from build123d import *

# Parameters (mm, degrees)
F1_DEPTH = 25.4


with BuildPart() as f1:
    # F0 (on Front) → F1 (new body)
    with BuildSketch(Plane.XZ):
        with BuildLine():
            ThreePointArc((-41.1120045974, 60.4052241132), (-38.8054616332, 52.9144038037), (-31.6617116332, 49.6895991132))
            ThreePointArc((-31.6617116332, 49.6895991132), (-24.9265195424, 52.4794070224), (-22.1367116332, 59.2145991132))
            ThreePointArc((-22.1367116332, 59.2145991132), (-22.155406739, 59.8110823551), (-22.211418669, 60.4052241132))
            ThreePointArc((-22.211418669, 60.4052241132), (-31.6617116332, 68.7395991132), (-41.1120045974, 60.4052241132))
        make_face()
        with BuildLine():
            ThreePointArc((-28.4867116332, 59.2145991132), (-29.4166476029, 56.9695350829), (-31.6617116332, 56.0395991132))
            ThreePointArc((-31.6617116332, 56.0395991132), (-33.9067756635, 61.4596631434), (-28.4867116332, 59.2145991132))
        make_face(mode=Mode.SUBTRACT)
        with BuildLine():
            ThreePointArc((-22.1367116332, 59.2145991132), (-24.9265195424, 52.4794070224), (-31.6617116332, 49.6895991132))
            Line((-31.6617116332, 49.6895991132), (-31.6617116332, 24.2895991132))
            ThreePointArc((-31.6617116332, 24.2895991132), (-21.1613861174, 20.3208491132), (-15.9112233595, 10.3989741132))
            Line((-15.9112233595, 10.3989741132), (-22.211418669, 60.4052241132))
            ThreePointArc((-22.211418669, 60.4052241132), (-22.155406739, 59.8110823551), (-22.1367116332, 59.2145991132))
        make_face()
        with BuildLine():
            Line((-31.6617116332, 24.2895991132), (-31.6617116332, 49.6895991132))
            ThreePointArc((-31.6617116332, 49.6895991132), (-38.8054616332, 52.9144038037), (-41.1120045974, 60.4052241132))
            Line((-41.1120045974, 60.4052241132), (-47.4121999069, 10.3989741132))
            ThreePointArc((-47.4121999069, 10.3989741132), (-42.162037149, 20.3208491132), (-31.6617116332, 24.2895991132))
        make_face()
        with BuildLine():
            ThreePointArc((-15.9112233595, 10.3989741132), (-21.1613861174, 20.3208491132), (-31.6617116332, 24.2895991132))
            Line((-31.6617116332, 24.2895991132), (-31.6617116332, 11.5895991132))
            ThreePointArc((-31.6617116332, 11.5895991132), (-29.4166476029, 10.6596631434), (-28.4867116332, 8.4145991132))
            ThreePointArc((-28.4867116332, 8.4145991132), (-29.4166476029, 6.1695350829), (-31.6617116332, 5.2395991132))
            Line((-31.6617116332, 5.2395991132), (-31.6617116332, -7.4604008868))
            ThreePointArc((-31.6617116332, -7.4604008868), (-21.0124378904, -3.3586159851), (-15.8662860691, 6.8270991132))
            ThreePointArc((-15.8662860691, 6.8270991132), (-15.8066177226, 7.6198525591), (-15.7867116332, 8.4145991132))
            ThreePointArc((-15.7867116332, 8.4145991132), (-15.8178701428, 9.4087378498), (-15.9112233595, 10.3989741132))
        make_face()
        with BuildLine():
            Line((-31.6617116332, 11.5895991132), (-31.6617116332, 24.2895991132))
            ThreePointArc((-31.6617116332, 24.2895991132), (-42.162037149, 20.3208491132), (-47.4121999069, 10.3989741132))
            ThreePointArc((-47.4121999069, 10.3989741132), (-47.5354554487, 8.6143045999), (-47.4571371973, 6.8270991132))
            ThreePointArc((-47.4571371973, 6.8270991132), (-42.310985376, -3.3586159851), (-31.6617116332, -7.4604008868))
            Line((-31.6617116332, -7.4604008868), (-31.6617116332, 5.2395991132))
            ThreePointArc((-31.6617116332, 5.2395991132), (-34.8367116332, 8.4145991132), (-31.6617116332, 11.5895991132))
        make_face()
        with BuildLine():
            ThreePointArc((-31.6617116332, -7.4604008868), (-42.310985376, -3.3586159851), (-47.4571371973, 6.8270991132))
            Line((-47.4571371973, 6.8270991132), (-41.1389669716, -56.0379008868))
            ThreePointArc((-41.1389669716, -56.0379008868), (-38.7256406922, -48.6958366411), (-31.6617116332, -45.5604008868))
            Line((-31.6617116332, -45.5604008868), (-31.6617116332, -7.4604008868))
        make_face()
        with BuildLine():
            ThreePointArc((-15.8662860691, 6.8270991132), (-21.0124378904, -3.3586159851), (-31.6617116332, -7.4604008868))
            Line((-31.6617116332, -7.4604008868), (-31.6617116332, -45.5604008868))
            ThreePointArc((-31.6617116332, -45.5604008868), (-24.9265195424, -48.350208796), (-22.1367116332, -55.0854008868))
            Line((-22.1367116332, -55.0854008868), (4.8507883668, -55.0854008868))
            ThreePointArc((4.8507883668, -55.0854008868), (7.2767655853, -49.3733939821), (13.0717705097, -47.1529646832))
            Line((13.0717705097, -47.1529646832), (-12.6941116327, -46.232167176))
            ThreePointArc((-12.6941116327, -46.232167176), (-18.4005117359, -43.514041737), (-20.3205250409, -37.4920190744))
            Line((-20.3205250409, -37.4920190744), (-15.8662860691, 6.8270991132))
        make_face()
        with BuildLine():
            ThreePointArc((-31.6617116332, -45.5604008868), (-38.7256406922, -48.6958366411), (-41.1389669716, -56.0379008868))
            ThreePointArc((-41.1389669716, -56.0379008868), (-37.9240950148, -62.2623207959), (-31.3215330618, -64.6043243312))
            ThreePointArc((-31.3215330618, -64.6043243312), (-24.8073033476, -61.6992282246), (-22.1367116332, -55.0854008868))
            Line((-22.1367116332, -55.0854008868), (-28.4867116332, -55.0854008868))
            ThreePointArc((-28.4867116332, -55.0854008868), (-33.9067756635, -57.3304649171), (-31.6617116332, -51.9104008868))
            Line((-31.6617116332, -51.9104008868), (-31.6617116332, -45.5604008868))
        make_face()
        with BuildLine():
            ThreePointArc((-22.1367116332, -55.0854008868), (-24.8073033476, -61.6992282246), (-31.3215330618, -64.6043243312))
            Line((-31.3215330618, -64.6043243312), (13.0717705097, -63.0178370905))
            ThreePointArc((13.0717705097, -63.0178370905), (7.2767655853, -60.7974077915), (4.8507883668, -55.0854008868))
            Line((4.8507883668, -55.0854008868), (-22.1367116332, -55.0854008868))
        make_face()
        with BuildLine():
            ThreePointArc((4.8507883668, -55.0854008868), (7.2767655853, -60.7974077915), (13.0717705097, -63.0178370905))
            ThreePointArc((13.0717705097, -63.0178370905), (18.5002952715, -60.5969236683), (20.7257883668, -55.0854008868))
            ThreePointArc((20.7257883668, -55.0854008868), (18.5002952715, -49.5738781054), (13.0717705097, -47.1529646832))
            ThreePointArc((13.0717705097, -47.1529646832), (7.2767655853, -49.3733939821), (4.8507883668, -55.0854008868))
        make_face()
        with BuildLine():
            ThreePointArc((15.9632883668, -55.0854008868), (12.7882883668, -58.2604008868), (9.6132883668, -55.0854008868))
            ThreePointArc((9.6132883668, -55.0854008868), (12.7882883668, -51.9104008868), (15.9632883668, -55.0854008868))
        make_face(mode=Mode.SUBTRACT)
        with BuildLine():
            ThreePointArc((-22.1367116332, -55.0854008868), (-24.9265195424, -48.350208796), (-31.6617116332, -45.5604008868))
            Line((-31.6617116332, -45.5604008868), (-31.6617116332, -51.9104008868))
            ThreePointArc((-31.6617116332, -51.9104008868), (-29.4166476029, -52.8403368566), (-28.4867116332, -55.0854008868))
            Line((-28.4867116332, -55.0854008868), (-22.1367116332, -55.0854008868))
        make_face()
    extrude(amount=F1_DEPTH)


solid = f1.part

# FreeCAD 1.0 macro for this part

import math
import FreeCAD as App
import Part
import Sketcher

V = App.Vector
Q = App.Units.Quantity

doc = App.newDocument("Part")
body = doc.addObject("PartDesign::Body", "Body")

sketch1 = body.newObject("Sketcher::SketchObject", "Sketch")
sketch1.AttachmentSupport = (doc.getObject("XZ_Plane"), [""])
sketch1.MapMode = "FlatFace"
sketch1.addGeometry([
    Part.ArcOfCircle(Part.Circle(V(-31.7, -55.1, 0), V(0, 0, 1), 9.5), math.radians(-174), math.radians(-88)),
    Part.LineSegment(V(-31.3, -64.6, 0), V(13.1, -63, 0)),
    Part.ArcOfCircle(Part.Circle(V(12.8, -55.1, 0), V(0, 0, 1), 7.9), math.radians(-88), math.radians(0)),
    Part.ArcOfCircle(Part.Circle(V(12.8, -55.1, 0), V(0, 0, 1), 7.9), math.radians(0), math.radians(88)),
    Part.LineSegment(V(13.1, -47.2, 0), V(-12.7, -46.2, 0)),
    Part.ArcOfCircle(Part.Circle(V(-12.4, -38.3, 0), V(0, 0, 1), 8), math.radians(174), math.radians(268)),
    Part.LineSegment(V(-20.3, -37.5, 0), V(-15.9, 6.8, 0)),
    Part.ArcOfCircle(Part.Circle(V(-31.7, 8.4, 0), V(0, 0, 1), 15.9), math.radians(-5.74), math.radians(0)),
    Part.ArcOfCircle(Part.Circle(V(-31.7, 8.4, 0), V(0, 0, 1), 15.9), math.radians(0), math.radians(7.18)),
    Part.LineSegment(V(-15.9, 10.4, 0), V(-22.2, 60.4, 0)),
    Part.ArcOfCircle(Part.Circle(V(-31.7, 59.2, 0), V(0, 0, 1), 9.5), math.radians(7), math.radians(173)),
    Part.LineSegment(V(-41.1, 60.4, 0), V(-47.4, 10.4, 0)),
    Part.ArcOfCircle(Part.Circle(V(-31.7, 8.4, 0), V(0, 0, 1), 15.9), math.radians(172.82), math.radians(185.74)),
    Part.LineSegment(V(-47.5, 6.8, 0), V(-41.1, -56, 0)),
    Part.ArcOfCircle(Part.Circle(V(-31.7, -55.1, 0), V(0, 0, 1), 3.2), math.radians(90), math.radians(360)),
    Part.ArcOfCircle(Part.Circle(V(-31.7, -55.1, 0), V(0, 0, 1), 3.2), math.radians(0), math.radians(90)),
    Part.Circle(V(12.8, -55.1, 0), V(0, 0, 1), 3.2),
    Part.ArcOfCircle(Part.Circle(V(-31.7, 8.4, 0), V(0, 0, 1), 3.2), math.radians(0), math.radians(90)),
    Part.ArcOfCircle(Part.Circle(V(-31.7, 8.4, 0), V(0, 0, 1), 3.2), math.radians(-90), math.radians(0)),
    Part.ArcOfCircle(Part.Circle(V(-31.7, 8.4, 0), V(0, 0, 1), 3.2), math.radians(90), math.radians(270)),
    Part.ArcOfCircle(Part.Circle(V(-31.7, 59.2, 0), V(0, 0, 1), 3.2), math.radians(0), math.radians(270)),
    Part.ArcOfCircle(Part.Circle(V(-31.7, 59.2, 0), V(0, 0, 1), 3.2), math.radians(-90), math.radians(0)),
], False)
sketch1.addConstraint([
    Sketcher.Constraint("Tangent", 0, 2, 1, 1),
    Sketcher.Constraint("Tangent", 1, 2, 2, 1),
    Sketcher.Constraint("Tangent", 2, 2, 3, 1),
    Sketcher.Constraint("Tangent", 3, 2, 4, 1),
    Sketcher.Constraint("Tangent", 4, 2, 5, 2),
    Sketcher.Constraint("Tangent", 5, 1, 6, 1),
    Sketcher.Constraint("Tangent", 6, 2, 7, 1),
    Sketcher.Constraint("Tangent", 7, 2, 8, 1),
    Sketcher.Constraint("Tangent", 8, 2, 9, 1),
    Sketcher.Constraint("Tangent", 9, 2, 10, 1),
    Sketcher.Constraint("Tangent", 10, 2, 11, 1),
    Sketcher.Constraint("Tangent", 11, 2, 12, 1),
    Sketcher.Constraint("Tangent", 12, 2, 13, 1),
    Sketcher.Constraint("Tangent", 13, 2, 0, 1),
    Sketcher.Constraint("Tangent", 14, 1, 15, 2),
    Sketcher.Constraint("Coincident", 15, 1, 14, 2),
    Sketcher.Constraint("Tangent", 17, 1, 18, 2),
    Sketcher.Constraint("Tangent", 18, 1, 19, 2),
    Sketcher.Constraint("Tangent", 19, 1, 17, 2),
    Sketcher.Constraint("Tangent", 20, 1, 21, 2),
    Sketcher.Constraint("Coincident", 21, 1, 20, 2),
    Sketcher.Constraint("Coincident", 12, 3, 7, 3),
    Sketcher.Constraint("Coincident", 14, 3, 0, 3),
    Sketcher.Constraint("Coincident", 16, 3, 2, 3),
    Sketcher.Constraint("Coincident", 17, 3, 7, 3),
    Sketcher.Constraint("Coincident", 20, 3, 10, 3),
    Sketcher.Constraint("Equal", 2, 3),
    Sketcher.Constraint("Equal", 7, 8),
    Sketcher.Constraint("Equal", 0, 10),
    Sketcher.Constraint("Equal", 8, 12),
    Sketcher.Constraint("Equal", 15, 16),
    Sketcher.Constraint("Equal", 16, 17),
    Sketcher.Constraint("Equal", 19, 20),
    Sketcher.Constraint("Horizontal", 0, 3, 2, 3),
    Sketcher.Constraint("Horizontal", 16, 3, 2, 2),
    Sketcher.Constraint("Horizontal", 19, 3, 7, 2),
    Sketcher.Constraint("Horizontal", 9, 2, 10, 2),
    Sketcher.Constraint("Horizontal", 6, 2, 12, 2),
    Sketcher.Constraint("Horizontal", 2, 2, 15, 1),
    Sketcher.Constraint("Horizontal", 7, 2, 17, 1),
    Sketcher.Constraint("Horizontal", 21, 3, 20, 1),
    Sketcher.Constraint("Vertical", 0, 3, 7, 3),
    Sketcher.Constraint("Vertical", 1, 2, 3, 2),
    Sketcher.Constraint("Vertical", 21, 3, 14, 1),
    Sketcher.Constraint("Vertical", 14, 1, 18, 1),
    Sketcher.Constraint("Vertical", 18, 1, 19, 1),
    Sketcher.Constraint("Vertical", 19, 1, 21, 1),
    Sketcher.Constraint("Diameter", 16, Q("0.25 in")),
    Sketcher.Constraint("Radius", 0, Q("0.375 in")),
    Sketcher.Constraint("Radius", 2, Q("0.3125 in")),
    Sketcher.Constraint("Radius", 5, Q("0.313 in")),
    Sketcher.Constraint("Radius", 7, Q("0.625 in")),
    Sketcher.Constraint("DistanceY", 7, 3, 10, 3, Q("2 in")),
    Sketcher.Constraint("DistanceY", 0, 3, 7, 3, Q("2.5 in")),
    Sketcher.Constraint("DistanceX", 0, 3, 2, 3, Q("1.75 in")),
    Sketcher.Constraint("DistanceY", 0, 3, -1, 1, 55.085401),
    Sketcher.Constraint("DistanceX", 11, 2, -1, 1, 47.4122),
])
pad1 = body.newObject("PartDesign::Pad", "Pad")
pad1.Profile = sketch1
pad1.Length = Q("1 in")

doc.recompute()
